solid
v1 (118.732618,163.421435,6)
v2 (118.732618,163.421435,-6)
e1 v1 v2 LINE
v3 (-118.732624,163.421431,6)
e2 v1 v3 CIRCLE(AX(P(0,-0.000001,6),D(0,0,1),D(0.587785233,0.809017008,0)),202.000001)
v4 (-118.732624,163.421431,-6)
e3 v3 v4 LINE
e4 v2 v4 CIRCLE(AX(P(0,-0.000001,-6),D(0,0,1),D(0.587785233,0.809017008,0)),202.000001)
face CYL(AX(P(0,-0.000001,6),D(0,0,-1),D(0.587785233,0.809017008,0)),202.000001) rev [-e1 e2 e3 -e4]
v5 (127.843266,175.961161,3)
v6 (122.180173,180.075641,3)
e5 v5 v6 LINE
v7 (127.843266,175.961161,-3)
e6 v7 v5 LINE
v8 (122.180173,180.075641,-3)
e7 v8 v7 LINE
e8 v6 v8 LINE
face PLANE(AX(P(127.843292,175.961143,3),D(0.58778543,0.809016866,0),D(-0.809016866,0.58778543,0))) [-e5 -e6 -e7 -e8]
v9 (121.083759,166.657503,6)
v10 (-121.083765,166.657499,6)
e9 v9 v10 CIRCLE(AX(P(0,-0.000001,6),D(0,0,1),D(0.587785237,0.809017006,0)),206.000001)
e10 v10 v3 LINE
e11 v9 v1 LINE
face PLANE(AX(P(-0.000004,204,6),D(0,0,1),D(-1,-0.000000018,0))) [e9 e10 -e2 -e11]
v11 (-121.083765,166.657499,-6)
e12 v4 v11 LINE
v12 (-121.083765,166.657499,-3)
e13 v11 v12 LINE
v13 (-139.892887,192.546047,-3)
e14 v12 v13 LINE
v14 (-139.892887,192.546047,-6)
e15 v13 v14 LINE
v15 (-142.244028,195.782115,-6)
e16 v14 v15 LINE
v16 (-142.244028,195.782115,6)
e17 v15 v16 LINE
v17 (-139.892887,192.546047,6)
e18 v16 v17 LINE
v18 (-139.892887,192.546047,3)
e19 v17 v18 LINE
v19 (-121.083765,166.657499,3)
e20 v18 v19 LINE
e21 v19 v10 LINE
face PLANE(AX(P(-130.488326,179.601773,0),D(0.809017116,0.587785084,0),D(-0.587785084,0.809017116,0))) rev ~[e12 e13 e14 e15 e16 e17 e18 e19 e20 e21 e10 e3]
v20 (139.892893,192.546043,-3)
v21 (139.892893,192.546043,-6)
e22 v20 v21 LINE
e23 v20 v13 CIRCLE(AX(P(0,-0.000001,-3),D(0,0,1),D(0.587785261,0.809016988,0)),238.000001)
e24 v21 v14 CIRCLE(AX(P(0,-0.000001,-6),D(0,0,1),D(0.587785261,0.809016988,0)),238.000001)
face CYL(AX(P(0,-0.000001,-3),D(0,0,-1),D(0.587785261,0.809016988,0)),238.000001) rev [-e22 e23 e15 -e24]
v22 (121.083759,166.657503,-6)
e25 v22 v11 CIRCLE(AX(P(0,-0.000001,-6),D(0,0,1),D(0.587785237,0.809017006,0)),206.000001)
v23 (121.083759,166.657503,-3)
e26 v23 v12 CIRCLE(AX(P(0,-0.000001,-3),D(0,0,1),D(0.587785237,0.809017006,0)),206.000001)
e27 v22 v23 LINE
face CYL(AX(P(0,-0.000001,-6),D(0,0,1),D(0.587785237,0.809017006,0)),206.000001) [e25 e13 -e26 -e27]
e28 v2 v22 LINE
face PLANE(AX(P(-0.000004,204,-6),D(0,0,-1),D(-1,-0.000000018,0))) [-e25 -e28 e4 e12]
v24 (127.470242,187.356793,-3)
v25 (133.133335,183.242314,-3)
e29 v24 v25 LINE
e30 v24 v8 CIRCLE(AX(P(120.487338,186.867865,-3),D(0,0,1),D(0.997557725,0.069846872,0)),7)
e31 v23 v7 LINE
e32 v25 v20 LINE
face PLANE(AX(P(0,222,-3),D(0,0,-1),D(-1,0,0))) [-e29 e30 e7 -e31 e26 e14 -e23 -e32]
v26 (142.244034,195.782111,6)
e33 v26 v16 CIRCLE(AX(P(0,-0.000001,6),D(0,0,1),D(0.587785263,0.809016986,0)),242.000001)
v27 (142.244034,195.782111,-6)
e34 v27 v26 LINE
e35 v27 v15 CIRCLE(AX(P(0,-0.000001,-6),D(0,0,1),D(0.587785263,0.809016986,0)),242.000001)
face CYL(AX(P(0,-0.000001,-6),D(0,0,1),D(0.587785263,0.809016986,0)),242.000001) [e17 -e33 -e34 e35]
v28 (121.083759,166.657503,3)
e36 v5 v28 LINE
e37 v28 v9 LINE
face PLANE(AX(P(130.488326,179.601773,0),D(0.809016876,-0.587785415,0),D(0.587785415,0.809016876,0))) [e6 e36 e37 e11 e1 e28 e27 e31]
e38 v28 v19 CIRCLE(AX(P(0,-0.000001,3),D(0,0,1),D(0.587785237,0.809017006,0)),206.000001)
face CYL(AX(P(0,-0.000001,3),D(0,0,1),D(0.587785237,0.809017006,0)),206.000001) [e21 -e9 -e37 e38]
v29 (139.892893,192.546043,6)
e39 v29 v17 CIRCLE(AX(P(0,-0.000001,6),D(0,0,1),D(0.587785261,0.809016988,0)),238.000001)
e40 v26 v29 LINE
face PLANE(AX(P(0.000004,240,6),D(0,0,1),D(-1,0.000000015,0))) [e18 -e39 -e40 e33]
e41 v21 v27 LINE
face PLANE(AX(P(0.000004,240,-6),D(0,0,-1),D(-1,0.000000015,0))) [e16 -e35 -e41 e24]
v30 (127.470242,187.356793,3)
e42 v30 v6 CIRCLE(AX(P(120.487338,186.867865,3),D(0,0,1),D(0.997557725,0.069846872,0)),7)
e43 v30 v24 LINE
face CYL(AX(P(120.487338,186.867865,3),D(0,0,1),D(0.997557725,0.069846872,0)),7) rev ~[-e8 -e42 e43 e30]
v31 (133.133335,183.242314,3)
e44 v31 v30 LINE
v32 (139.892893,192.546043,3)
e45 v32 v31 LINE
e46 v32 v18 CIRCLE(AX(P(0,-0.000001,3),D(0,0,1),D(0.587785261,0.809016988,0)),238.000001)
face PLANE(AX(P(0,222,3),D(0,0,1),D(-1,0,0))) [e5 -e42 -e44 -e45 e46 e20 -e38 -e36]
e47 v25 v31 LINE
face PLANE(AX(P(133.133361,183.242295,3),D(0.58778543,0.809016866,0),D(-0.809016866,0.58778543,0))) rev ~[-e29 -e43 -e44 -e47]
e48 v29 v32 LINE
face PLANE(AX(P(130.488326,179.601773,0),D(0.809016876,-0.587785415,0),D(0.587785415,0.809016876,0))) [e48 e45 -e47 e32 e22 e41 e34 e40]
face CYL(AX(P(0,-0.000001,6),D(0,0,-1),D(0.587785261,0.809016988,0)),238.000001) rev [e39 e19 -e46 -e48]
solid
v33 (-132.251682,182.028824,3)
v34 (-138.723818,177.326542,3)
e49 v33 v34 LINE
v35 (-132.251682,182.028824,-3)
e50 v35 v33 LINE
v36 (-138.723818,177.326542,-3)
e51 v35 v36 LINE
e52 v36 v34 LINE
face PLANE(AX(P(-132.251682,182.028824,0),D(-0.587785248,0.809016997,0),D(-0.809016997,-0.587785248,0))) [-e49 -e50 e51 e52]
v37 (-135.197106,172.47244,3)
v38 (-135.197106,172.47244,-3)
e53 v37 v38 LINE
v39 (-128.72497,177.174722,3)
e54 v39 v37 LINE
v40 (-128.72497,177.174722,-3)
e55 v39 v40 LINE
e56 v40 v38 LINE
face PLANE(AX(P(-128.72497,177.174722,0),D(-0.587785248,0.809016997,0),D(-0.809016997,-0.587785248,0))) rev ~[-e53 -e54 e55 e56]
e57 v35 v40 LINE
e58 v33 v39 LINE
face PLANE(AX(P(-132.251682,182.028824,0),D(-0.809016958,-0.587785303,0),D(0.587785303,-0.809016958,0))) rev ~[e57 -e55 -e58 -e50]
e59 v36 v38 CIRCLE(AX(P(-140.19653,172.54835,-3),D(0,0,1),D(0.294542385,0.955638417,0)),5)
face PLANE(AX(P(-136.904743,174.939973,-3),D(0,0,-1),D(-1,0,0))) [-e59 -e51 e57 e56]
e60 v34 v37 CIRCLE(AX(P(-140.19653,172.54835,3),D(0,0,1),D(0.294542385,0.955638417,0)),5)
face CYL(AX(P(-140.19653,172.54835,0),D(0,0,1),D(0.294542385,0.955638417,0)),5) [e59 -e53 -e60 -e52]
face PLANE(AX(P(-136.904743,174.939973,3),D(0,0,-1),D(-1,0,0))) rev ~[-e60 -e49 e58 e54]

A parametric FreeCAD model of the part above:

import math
import FreeCAD as App
import Part
import Sketcher
Q = App.Units.Quantity

doc = App.newDocument("Part")
body = doc.addObject("PartDesign::Body", "Body")

sketch1 = body.newObject("Sketcher::SketchObject", "Sketch")
sketch1.Placement = App.Placement(App.Vector(-130.488326, 179.601773, 0), App.Rotation(App.Vector(-0.587785084, 0.809017116, 0), App.Vector(0, 0, 0.999999999), App.Vector(0.809017116, 0.587785084, 0), "ZXY"))
sketch1.addGeometry([
    Part.LineSegment(App.Vector(-20, 6, 0), App.Vector(-20, -6, 0)),
    Part.LineSegment(App.Vector(-20, -6, 0), App.Vector(-16, -6, 0)),
    Part.LineSegment(App.Vector(-16, -6, 0), App.Vector(-16, -3, 0)),
    Part.LineSegment(App.Vector(-16, -3, 0), App.Vector(16, -3, 0)),
    Part.LineSegment(App.Vector(16, -3, 0), App.Vector(16, -6, 0)),
    Part.LineSegment(App.Vector(16, -6, 0), App.Vector(20, -6, 0)),
    Part.LineSegment(App.Vector(20, -6, 0), App.Vector(20, 6, 0)),
    Part.LineSegment(App.Vector(20, 6, 0), App.Vector(16, 6, 0)),
    Part.LineSegment(App.Vector(16, 6, 0), App.Vector(16, 3, 0)),
    Part.LineSegment(App.Vector(16, 3, 0), App.Vector(-16, 3, 0)),
    Part.LineSegment(App.Vector(-16, 3, 0), App.Vector(-16, 6, 0)),
    Part.LineSegment(App.Vector(-16, 6, 0), App.Vector(-20, 6, 0)),
], False)
sketch1.addConstraint([
    Sketcher.Constraint("Coincident", 0, 2, 1, 1),
    Sketcher.Constraint("Coincident", 1, 2, 2, 1),
    Sketcher.Constraint("Coincident", 2, 2, 3, 1),
    Sketcher.Constraint("Coincident", 3, 2, 4, 1),
    Sketcher.Constraint("Coincident", 4, 2, 5, 1),
    Sketcher.Constraint("Coincident", 5, 2, 6, 1),
    Sketcher.Constraint("Coincident", 6, 2, 7, 1),
    Sketcher.Constraint("Coincident", 7, 2, 8, 1),
    Sketcher.Constraint("Coincident", 8, 2, 9, 1),
    Sketcher.Constraint("Coincident", 9, 2, 10, 1),
    Sketcher.Constraint("Coincident", 10, 2, 11, 1),
    Sketcher.Constraint("Coincident", 11, 2, 0, 1),
    Sketcher.Constraint("Vertical", 0),
    Sketcher.Constraint("Horizontal", 1),
    Sketcher.Constraint("Vertical", 2),
    Sketcher.Constraint("Horizontal", 3),
    Sketcher.Constraint("Vertical", 4),
    Sketcher.Constraint("Horizontal", 5),
    Sketcher.Constraint("Vertical", 6),
    Sketcher.Constraint("Horizontal", 7),
    Sketcher.Constraint("Vertical", 8),
    Sketcher.Constraint("Horizontal", 9),
    Sketcher.Constraint("Vertical", 10),
    Sketcher.Constraint("Horizontal", 11),
    Sketcher.Constraint("Symmetric", 0, 2, 6, 2, -1, 1),
    Sketcher.Constraint("Symmetric", 2, 2, 8, 2, -1, 1),
    Sketcher.Constraint("Symmetric", 4, 2, 10, 2, -1, 1),
    Sketcher.Constraint("Symmetric", 1, 2, 4, 2, -2),
    Sketcher.Constraint("DistanceX", 1, 1, 1, 2, 4.0),
    Sketcher.Constraint("DistanceX", 3, 1, 3, 2, 32.0),
    Sketcher.Constraint("DistanceY", 0, 2, 0, 1, 12.0),
    Sketcher.Constraint("DistanceY", 2, 1, 2, 2, 3.0),
])

sketch2 = body.newObject("Sketcher::SketchObject", "Sketch001")
sketch2.AttachmentSupport = (doc.getObject("XY_Plane"), [""])
sketch2.MapMode = "FlatFace"
sketch2.addGeometry(Part.ArcOfCircle(Part.Circle(App.Vector(0, 0, 0), App.Vector(0, 0, 1), 222), math.radians(54), math.radians(126)), False)
sketch2.addConstraint([
    Sketcher.Constraint("Coincident", 0, 3, -1, 1),
    Sketcher.Constraint("Radius", 0, 222.000001),
    Sketcher.Constraint("DistanceX", 0, 2, 0, 1, 260.976652),
    Sketcher.Constraint("DistanceX", -1, 1, 0, 1, 130.488326),
])
doc.recompute()

additivepipe = body.newObject("PartDesign::AdditivePipe", "AdditivePipe")
additivepipe.Profile = sketch1
additivepipe.Spine = (sketch2, ["Edge1"])

sketch3 = body.newObject("Sketcher::SketchObject", "Sketch002")
sketch3.AttachmentSupport = (doc.getObject("XY_Plane"), [""])
sketch3.MapMode = "FlatFace"
sketch3.AttachmentOffset = App.Placement(App.Vector(0, 0, 3), App.Rotation())
sketch3.addGeometry([
    Part.LineSegment(App.Vector(128, 176, 0), App.Vector(133, 183, 0)),
    Part.LineSegment(App.Vector(133, 183, 0), App.Vector(127, 187, 0)),
    Part.ArcOfCircle(Part.Circle(App.Vector(120, 187, 0), App.Vector(0, 0, 1), 7), math.radians(4), math.radians(284)),
    Part.LineSegment(App.Vector(122, 180, 0), App.Vector(128, 176, 0)),
], False)
sketch3.addConstraint([
    Sketcher.Constraint("Coincident", 0, 2, 1, 1),
    Sketcher.Constraint("Coincident", 1, 2, 2, 1),
    Sketcher.Constraint("Coincident", 2, 2, 3, 1),
    Sketcher.Constraint("Coincident", 3, 2, 0, 1),
    Sketcher.Constraint("Perpendicular", 0, 1),
    Sketcher.Constraint("Parallel", 1, 3),
    Sketcher.Constraint("Equal", 1, 3),
    Sketcher.Constraint("Radius", 2, 7.0),
    Sketcher.Constraint("Angle", 0, Q("53.999988 deg")),
    Sketcher.Constraint("Distance", 0, 9.0),
    Sketcher.Constraint("Distance", 1, 7.0),
    Sketcher.Constraint("DistanceX", -1, 1, 2, 3, 120.487338),
    Sketcher.Constraint("DistanceY", -1, 1, 2, 2, 180.075641),
])
pocket1 = body.newObject("PartDesign::Pocket", "Pocket")
pocket1.Profile = sketch3
pocket1.Type = "ThroughAll"
body2 = doc.addObject("PartDesign::Body", "Body001")

sketch4 = body2.newObject("Sketcher::SketchObject", "Sketch003")
sketch4.AttachmentSupport = (doc.getObject("XY_Plane001"), [""])
sketch4.MapMode = "FlatFace"
sketch4.addGeometry([
    Part.LineSegment(App.Vector(-129, 177, 0), App.Vector(-132, 182, 0)),
    Part.LineSegment(App.Vector(-132, 182, 0), App.Vector(-139, 177, 0)),
    Part.ArcOfCircle(Part.Circle(App.Vector(-140, 173, 0), App.Vector(0, 0, 1), 5), math.radians(73), math.radians(359)),
    Part.LineSegment(App.Vector(-135, 172, 0), App.Vector(-129, 177, 0)),
], False)
sketch4.addConstraint([
    Sketcher.Constraint("Coincident", 0, 2, 1, 1),
    Sketcher.Constraint("Coincident", 1, 2, 2, 1),
    Sketcher.Constraint("Coincident", 2, 2, 3, 1),
    Sketcher.Constraint("Coincident", 3, 2, 0, 1),
    Sketcher.Constraint("Perpendicular", 0, 1),
    Sketcher.Constraint("Parallel", 1, 3),
    Sketcher.Constraint("Equal", 1, 3),
    Sketcher.Constraint("Radius", 2, 5.0),
    Sketcher.Constraint("Angle", 0, Q("126.000004 deg")),
    Sketcher.Constraint("Distance", 0, 6.0),
    Sketcher.Constraint("Distance", 1, 8.0),
    Sketcher.Constraint("DistanceX", 2, 3, -1, 1, 140.19653),
    Sketcher.Constraint("DistanceY", -1, 1, 2, 3, 172.54835),
])
pad1 = body2.newObject("PartDesign::Pad", "Pad")
pad1.Profile = sketch4
pad1.Length = 6
pad1.Midplane = True

doc.recompute()
